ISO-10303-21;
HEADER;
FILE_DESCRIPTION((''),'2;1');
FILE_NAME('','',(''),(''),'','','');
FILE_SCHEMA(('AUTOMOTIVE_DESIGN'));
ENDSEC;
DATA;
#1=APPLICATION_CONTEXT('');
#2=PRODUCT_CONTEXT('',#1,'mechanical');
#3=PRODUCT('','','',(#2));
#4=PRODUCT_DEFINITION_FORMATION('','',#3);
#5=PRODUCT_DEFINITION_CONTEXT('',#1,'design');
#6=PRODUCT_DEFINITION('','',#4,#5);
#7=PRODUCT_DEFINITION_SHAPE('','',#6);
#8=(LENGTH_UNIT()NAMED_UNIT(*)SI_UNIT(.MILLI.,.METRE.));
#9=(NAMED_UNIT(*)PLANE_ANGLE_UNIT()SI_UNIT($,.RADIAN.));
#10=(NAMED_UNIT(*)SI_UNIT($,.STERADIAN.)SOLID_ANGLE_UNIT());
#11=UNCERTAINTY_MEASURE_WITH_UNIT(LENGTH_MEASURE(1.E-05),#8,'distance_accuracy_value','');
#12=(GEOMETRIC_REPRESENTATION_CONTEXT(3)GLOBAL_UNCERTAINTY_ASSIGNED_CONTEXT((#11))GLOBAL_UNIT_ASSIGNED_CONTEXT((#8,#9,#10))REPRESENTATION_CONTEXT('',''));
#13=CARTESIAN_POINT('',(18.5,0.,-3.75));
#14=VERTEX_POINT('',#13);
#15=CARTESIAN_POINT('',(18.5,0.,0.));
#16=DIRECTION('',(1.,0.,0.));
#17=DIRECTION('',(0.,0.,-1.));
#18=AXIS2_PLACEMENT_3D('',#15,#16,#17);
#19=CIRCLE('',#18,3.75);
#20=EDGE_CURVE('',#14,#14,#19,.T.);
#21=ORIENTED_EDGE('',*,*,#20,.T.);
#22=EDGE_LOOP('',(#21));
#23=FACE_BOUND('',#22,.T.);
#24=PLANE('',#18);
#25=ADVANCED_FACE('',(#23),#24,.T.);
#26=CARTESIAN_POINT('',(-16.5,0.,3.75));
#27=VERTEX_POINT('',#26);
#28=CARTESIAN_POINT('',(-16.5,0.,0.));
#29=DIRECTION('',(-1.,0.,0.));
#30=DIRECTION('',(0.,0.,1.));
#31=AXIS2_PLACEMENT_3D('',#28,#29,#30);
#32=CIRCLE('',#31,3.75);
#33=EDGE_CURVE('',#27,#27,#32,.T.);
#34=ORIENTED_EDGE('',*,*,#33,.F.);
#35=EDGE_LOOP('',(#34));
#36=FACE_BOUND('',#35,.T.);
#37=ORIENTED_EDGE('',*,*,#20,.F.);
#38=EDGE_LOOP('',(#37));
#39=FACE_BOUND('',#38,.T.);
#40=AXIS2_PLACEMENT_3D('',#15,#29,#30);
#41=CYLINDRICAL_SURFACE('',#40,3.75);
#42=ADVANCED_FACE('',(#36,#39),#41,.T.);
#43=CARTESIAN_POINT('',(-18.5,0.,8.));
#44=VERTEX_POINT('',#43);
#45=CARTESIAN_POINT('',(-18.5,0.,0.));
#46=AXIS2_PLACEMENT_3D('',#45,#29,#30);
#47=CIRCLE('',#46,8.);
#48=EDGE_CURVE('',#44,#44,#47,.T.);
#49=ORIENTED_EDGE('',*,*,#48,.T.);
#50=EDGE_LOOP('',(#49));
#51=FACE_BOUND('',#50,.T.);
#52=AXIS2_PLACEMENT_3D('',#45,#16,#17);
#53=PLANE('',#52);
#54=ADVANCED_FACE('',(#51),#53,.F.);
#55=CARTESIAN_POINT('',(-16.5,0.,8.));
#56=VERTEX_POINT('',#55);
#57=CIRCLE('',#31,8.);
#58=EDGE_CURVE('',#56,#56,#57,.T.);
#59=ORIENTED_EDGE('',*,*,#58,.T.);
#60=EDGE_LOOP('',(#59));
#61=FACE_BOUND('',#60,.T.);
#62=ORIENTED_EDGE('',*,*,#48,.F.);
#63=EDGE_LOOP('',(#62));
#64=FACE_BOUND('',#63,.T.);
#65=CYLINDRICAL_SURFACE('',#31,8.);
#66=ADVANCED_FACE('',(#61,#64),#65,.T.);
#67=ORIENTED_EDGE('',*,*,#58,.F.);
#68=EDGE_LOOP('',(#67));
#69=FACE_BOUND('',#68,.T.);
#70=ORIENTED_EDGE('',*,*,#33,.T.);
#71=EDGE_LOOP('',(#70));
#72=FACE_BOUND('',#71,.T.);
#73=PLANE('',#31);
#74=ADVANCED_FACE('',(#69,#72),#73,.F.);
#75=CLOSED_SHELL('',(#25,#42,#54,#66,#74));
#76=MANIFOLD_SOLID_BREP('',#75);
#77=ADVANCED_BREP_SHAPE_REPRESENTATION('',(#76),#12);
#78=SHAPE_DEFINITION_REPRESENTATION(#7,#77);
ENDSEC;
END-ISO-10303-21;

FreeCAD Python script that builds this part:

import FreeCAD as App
import Part
import Sketcher
from FreeCAD import Vector

doc = App.newDocument("Part")
body = doc.addObject("PartDesign::Body", "Body")

# Sketch on YZ plane
sketch1 = body.newObject("Sketcher::SketchObject", "Sketch")
sketch1.AttachmentSupport = (doc.getObject("YZ_Plane"), [""])
sketch1.MapMode = "FlatFace"
sketch1.addGeometry(Part.Circle(Vector(0, 0, 0), Vector(0, 0, 1), 3.8), False)
sketch1.addConstraint([
    Sketcher.Constraint("Coincident", 0, 3, -1, 1),
    Sketcher.Constraint("Diameter", 0, 7.5),
])
pad1 = body.newObject("PartDesign::Pad", "Pad")
pad1.Profile = sketch1
pad1.Length = 37
pad1.Midplane = True

# Sketch on YZ plane
sketch2 = body.newObject("Sketcher::SketchObject", "Sketch001")
sketch2.AttachmentSupport = (doc.getObject("YZ_Plane"), [""])
sketch2.MapMode = "FlatFace"
sketch2.AttachmentOffset = App.Placement(Vector(0, 0, -18.5), App.Rotation())
sketch2.addGeometry(Part.Circle(Vector(0, 0, 0), Vector(0, 0, 1), 8), False)
sketch2.addConstraint([
    Sketcher.Constraint("Coincident", 0, 3, -1, 1),
    Sketcher.Constraint("Diameter", 0, 16.0),
])
pad2 = body.newObject("PartDesign::Pad", "Pad001")
pad2.Profile = sketch2
pad2.Length = 2

doc.recompute()
